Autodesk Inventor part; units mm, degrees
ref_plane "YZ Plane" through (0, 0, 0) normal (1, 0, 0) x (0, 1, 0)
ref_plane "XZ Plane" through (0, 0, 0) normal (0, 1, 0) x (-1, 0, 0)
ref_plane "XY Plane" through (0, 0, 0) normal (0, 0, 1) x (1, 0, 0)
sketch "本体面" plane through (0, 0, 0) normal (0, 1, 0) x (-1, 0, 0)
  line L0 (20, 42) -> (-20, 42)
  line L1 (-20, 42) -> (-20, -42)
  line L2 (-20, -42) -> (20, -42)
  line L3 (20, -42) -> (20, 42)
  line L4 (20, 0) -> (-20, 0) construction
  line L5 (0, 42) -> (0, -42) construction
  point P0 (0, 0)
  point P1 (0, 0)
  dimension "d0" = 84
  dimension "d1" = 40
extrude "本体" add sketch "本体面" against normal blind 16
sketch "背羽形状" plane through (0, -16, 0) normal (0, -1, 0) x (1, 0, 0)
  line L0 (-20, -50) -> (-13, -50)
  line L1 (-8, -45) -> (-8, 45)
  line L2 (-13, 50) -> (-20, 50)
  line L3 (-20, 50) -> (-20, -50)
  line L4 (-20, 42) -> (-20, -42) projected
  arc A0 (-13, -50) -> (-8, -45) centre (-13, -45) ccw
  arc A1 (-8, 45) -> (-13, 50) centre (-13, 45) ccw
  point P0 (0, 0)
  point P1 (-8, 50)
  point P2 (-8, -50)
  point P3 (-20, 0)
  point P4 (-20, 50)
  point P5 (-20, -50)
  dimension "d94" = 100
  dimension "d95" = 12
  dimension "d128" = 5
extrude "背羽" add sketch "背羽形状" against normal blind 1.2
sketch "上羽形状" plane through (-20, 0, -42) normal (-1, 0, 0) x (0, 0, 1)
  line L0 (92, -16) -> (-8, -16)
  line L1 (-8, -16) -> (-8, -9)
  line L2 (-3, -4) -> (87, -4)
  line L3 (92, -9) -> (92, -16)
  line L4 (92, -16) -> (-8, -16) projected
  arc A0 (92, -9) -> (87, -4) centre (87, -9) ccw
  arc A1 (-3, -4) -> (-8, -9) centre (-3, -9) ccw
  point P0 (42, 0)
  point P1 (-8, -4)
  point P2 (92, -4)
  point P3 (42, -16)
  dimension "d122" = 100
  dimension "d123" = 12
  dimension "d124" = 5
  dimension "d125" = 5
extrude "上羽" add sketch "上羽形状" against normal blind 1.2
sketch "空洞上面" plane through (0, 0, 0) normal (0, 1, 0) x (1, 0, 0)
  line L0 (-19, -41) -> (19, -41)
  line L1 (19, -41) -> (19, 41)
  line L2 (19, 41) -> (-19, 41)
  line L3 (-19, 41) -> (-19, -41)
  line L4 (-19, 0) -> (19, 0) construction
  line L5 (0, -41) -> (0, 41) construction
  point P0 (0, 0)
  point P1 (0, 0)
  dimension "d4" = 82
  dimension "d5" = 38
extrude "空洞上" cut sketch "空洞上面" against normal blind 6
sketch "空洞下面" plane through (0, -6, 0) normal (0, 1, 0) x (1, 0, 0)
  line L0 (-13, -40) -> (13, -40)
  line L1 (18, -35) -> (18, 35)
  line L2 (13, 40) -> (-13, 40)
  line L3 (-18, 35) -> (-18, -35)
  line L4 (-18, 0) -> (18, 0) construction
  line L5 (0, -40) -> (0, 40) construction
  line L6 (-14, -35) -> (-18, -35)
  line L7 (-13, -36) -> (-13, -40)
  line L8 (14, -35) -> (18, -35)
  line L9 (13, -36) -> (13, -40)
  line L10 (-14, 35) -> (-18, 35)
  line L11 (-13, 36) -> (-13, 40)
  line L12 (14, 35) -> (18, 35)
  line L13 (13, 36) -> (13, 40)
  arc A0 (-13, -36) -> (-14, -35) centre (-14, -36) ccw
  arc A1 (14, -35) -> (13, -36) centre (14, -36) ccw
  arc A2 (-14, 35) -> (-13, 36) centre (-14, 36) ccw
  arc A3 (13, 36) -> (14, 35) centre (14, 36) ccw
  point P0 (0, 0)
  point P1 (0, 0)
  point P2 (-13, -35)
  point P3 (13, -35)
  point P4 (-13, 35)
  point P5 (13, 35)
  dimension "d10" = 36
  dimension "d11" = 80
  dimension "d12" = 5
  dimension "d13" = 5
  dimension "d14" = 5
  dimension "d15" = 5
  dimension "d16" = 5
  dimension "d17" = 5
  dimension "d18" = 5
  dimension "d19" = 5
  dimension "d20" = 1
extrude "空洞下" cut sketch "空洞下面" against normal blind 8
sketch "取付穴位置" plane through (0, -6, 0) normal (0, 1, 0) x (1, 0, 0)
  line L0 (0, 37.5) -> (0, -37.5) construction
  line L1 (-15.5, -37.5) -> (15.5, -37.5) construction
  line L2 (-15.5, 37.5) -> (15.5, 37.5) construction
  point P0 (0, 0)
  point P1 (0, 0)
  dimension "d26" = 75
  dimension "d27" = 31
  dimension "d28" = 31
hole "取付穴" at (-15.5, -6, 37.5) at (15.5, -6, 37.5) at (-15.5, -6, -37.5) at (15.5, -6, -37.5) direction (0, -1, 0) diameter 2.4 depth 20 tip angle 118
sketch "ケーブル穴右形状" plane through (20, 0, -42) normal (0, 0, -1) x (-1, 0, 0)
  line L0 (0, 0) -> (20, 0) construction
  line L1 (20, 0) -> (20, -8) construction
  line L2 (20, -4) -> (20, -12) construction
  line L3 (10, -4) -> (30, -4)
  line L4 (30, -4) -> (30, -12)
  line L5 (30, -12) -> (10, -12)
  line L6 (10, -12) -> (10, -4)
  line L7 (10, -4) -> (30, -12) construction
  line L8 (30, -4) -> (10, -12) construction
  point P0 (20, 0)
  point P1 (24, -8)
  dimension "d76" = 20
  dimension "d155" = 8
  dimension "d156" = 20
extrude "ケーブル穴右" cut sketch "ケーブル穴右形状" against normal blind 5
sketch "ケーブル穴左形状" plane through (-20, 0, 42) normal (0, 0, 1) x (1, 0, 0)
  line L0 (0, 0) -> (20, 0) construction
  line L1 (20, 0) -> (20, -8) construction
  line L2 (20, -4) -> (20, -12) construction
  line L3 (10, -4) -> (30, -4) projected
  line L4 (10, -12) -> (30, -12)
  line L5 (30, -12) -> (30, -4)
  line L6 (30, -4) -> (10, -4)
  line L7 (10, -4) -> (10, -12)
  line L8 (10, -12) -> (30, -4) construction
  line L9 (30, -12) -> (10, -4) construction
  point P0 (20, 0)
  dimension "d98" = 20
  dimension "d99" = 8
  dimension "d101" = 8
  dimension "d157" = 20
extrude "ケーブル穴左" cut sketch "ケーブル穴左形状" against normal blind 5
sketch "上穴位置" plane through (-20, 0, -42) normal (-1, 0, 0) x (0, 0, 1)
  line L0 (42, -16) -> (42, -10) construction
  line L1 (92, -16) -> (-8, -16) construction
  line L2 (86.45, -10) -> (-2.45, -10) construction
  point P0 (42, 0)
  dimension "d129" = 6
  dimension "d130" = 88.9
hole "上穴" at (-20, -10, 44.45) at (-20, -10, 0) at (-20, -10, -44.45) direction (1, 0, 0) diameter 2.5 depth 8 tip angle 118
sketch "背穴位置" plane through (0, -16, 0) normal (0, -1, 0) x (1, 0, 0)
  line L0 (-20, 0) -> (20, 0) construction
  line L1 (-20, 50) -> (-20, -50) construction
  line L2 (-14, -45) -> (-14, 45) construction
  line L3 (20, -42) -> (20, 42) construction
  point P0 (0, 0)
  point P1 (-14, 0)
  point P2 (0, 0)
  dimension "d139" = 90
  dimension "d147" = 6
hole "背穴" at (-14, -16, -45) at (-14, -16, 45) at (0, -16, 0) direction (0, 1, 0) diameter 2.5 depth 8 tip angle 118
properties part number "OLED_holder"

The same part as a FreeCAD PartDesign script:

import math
import FreeCAD as App
import Part
import Sketcher

V = App.Vector
Q = App.Units.Quantity

doc = App.newDocument("Part")
body = doc.addObject("PartDesign::Body", "Body")

sketch1 = body.newObject("Sketcher::SketchObject", "Sketch")
sketch1.AttachmentSupport = (doc.getObject("XZ_Plane"), [""])
sketch1.MapMode = "FlatFace"
sketch1.addGeometry(Part.LineSegment(V(-20, -42, 0), V(-20, 42, 0)), False)
sketch1.addGeometry(Part.LineSegment(V(-20, 42, 0), V(20, 42, 0)), False)
sketch1.addGeometry(Part.LineSegment(V(20, 42, 0), V(20, -42, 0)), False)
sketch1.addGeometry(Part.LineSegment(V(20, -42, 0), V(-20, -42, 0)), False)
sketch1.addConstraint(Sketcher.Constraint("Coincident", 0, 2, 1, 1))
sketch1.addConstraint(Sketcher.Constraint("Coincident", 1, 2, 2, 1))
sketch1.addConstraint(Sketcher.Constraint("Coincident", 2, 2, 3, 1))
sketch1.addConstraint(Sketcher.Constraint("Coincident", 3, 2, 0, 1))
sketch1.addConstraint(Sketcher.Constraint("Vertical", 0))
sketch1.addConstraint(Sketcher.Constraint("Horizontal", 1))
sketch1.addConstraint(Sketcher.Constraint("Vertical", 2))
sketch1.addConstraint(Sketcher.Constraint("Horizontal", 3))
sketch1.addConstraint(Sketcher.Constraint("Symmetric", 0, 2, 2, 2, -1, 1))
sketch1.addConstraint(Sketcher.Constraint("DistanceX", 1, 1, 1, 2, Q("40 mm")))
sketch1.addConstraint(Sketcher.Constraint("DistanceY", 0, 1, 0, 2, Q("84 mm")))
pad1 = body.newObject("PartDesign::Pad", "Pad")
pad1.Profile = sketch1
pad1.Length = 16

sketch2 = body.newObject("Sketcher::SketchObject", "Sketch001")
sketch2.AttachmentSupport = (doc.getObject("XZ_Plane"), [""])
sketch2.MapMode = "FlatFace"
sketch2.AttachmentOffset = App.Placement(V(0, 0, 16), App.Rotation())
sketch2.addGeometry(Part.LineSegment(V(-20, 50, 0), V(-20, -50, 0)), False)
sketch2.addGeometry(Part.LineSegment(V(-20, -50, 0), V(-13, -50, 0)), False)
sketch2.addGeometry(Part.ArcOfCircle(Part.Circle(V(-13, -45, 0), V(0, 0, 1), 5), math.radians(-90), math.radians(0)), False)
sketch2.addGeometry(Part.LineSegment(V(-8, -45, 0), V(-8, 45, 0)), False)
sketch2.addGeometry(Part.ArcOfCircle(Part.Circle(V(-13, 45, 0), V(0, 0, 1), 5), math.radians(0), math.radians(90)), False)
sketch2.addGeometry(Part.LineSegment(V(-13, 50, 0), V(-20, 50, 0)), False)
sketch2.addConstraint(Sketcher.Constraint("Coincident", 0, 2, 1, 1))
sketch2.addConstraint(Sketcher.Constraint("Tangent", 1, 2, 2, 1))
sketch2.addConstraint(Sketcher.Constraint("Tangent", 2, 2, 3, 1))
sketch2.addConstraint(Sketcher.Constraint("Tangent", 3, 2, 4, 1))
sketch2.addConstraint(Sketcher.Constraint("Tangent", 4, 2, 5, 1))
sketch2.addConstraint(Sketcher.Constraint("Coincident", 5, 2, 0, 1))
sketch2.addConstraint(Sketcher.Constraint("Vertical", 0))
sketch2.addConstraint(Sketcher.Constraint("Horizontal", 1))
sketch2.addConstraint(Sketcher.Constraint("Vertical", 3))
sketch2.addConstraint(Sketcher.Constraint("Horizontal", 5))
sketch2.addConstraint(Sketcher.Constraint("Equal", 2, 4))
sketch2.addConstraint(Sketcher.Constraint("Radius", 2, Q("5 mm")))
sketch2.addConstraint(Sketcher.Constraint("DistanceY", 0, 2, 0, 1, Q("100 mm")))
sketch2.addConstraint(Sketcher.Constraint("DistanceX", 0, 2, 2, 2, Q("12 mm")))
sketch2.addConstraint(Sketcher.Constraint("DistanceX", 2, 3, -1, 1, Q("13 mm")))
sketch2.addConstraint(Sketcher.Constraint("DistanceY", 2, 3, -1, 1, Q("45 mm")))
pad2 = body.newObject("PartDesign::Pad", "Pad001")
pad2.Profile = sketch2
pad2.Length = 1.2
pad2.Reversed = True

sketch3 = body.newObject("Sketcher::SketchObject", "Sketch002")
sketch3.AttachmentSupport = (doc.getObject("YZ_Plane"), [""])
sketch3.MapMode = "FlatFace"
sketch3.AttachmentOffset = App.Placement(V(0, 0, -20), App.Rotation())
sketch3.addGeometry(Part.LineSegment(V(-16, -50, 0), V(-16, 50, 0)), False)
sketch3.addGeometry(Part.LineSegment(V(-16, 50, 0), V(-9, 50, 0)), False)
sketch3.addGeometry(Part.ArcOfCircle(Part.Circle(V(-9, 45, 0), V(0, 0, 1), 5), math.radians(0), math.radians(90)), False)
sketch3.addGeometry(Part.LineSegment(V(-4, 45, 0), V(-4, -45, 0)), False)
sketch3.addGeometry(Part.ArcOfCircle(Part.Circle(V(-9, -45, 0), V(0, 0, 1), 5), math.radians(-90), math.radians(0)), False)
sketch3.addGeometry(Part.LineSegment(V(-9, -50, 0), V(-16, -50, 0)), False)
sketch3.addConstraint(Sketcher.Constraint("Coincident", 0, 2, 1, 1))
sketch3.addConstraint(Sketcher.Constraint("Tangent", 1, 2, 2, 2))
sketch3.addConstraint(Sketcher.Constraint("Tangent", 2, 1, 3, 1))
sketch3.addConstraint(Sketcher.Constraint("Tangent", 3, 2, 4, 2))
sketch3.addConstraint(Sketcher.Constraint("Tangent", 4, 1, 5, 1))
sketch3.addConstraint(Sketcher.Constraint("Coincident", 5, 2, 0, 1))
sketch3.addConstraint(Sketcher.Constraint("Vertical", 0))
sketch3.addConstraint(Sketcher.Constraint("Horizontal", 1))
sketch3.addConstraint(Sketcher.Constraint("Vertical", 3))
sketch3.addConstraint(Sketcher.Constraint("Horizontal", 5))
sketch3.addConstraint(Sketcher.Constraint("Equal", 2, 4))
sketch3.addConstraint(Sketcher.Constraint("Radius", 2, Q("5 mm")))
sketch3.addConstraint(Sketcher.Constraint("DistanceY", 0, 1, 0, 2, Q("100 mm")))
sketch3.addConstraint(Sketcher.Constraint("DistanceX", 0, 2, 2, 1, Q("12 mm")))
sketch3.addConstraint(Sketcher.Constraint("DistanceX", 2, 3, -1, 1, Q("9 mm")))
sketch3.addConstraint(Sketcher.Constraint("DistanceY", -1, 1, 2, 3, Q("45 mm")))
pad3 = body.newObject("PartDesign::Pad", "Pad002")
pad3.Profile = sketch3
pad3.Length = 1.2

sketch4 = body.newObject("Sketcher::SketchObject", "Sketch003")
sketch4.AttachmentSupport = (doc.getObject("XZ_Plane"), [""])
sketch4.MapMode = "FlatFace"
sketch4.addGeometry(Part.LineSegment(V(-19, -41, 0), V(-19, 41, 0)), False)
sketch4.addGeometry(Part.LineSegment(V(-19, 41, 0), V(19, 41, 0)), False)
sketch4.addGeometry(Part.LineSegment(V(19, 41, 0), V(19, -41, 0)), False)
sketch4.addGeometry(Part.LineSegment(V(19, -41, 0), V(-19, -41, 0)), False)
sketch4.addConstraint(Sketcher.Constraint("Coincident", 0, 2, 1, 1))
sketch4.addConstraint(Sketcher.Constraint("Coincident", 1, 2, 2, 1))
sketch4.addConstraint(Sketcher.Constraint("Coincident", 2, 2, 3, 1))
sketch4.addConstraint(Sketcher.Constraint("Coincident", 3, 2, 0, 1))
sketch4.addConstraint(Sketcher.Constraint("Vertical", 0))
sketch4.addConstraint(Sketcher.Constraint("Horizontal", 1))
sketch4.addConstraint(Sketcher.Constraint("Vertical", 2))
sketch4.addConstraint(Sketcher.Constraint("Horizontal", 3))
sketch4.addConstraint(Sketcher.Constraint("Symmetric", 0, 2, 2, 2, -1, 1))
sketch4.addConstraint(Sketcher.Constraint("DistanceX", 1, 1, 1, 2, Q("38 mm")))
sketch4.addConstraint(Sketcher.Constraint("DistanceY", 0, 1, 0, 2, Q("82 mm")))
pocket1 = body.newObject("PartDesign::Pocket", "Pocket")
pocket1.Profile = sketch4
pocket1.Length = 6
pocket1.Reversed = True

sketch5 = body.newObject("Sketcher::SketchObject", "Sketch004")
sketch5.AttachmentSupport = (doc.getObject("XZ_Plane"), [""])
sketch5.MapMode = "FlatFace"
sketch5.AttachmentOffset = App.Placement(V(0, 0, 6), App.Rotation())
sketch5.addGeometry(Part.LineSegment(V(-13, 36, 0), V(-13, 40, 0)), False)
sketch5.addGeometry(Part.LineSegment(V(-13, 40, 0), V(13, 40, 0)), False)
sketch5.addGeometry(Part.LineSegment(V(13, 40, 0), V(13, 36, 0)), False)
sketch5.addGeometry(Part.ArcOfCircle(Part.Circle(V(14, 36, 0), V(0, 0, 1), 1), math.radians(180), math.radians(270)), False)
sketch5.addGeometry(Part.LineSegment(V(14, 35, 0), V(18, 35, 0)), False)
sketch5.addGeometry(Part.LineSegment(V(18, 35, 0), V(18, -35, 0)), False)
sketch5.addGeometry(Part.LineSegment(V(18, -35, 0), V(14, -35, 0)), False)
sketch5.addGeometry(Part.ArcOfCircle(Part.Circle(V(14, -36, 0), V(0, 0, 1), 1), math.radians(90), math.radians(180)), False)
sketch5.addGeometry(Part.LineSegment(V(13, -36, 0), V(13, -40, 0)), False)
sketch5.addGeometry(Part.LineSegment(V(13, -40, 0), V(-13, -40, 0)), False)
sketch5.addGeometry(Part.LineSegment(V(-13, -40, 0), V(-13, -36, 0)), False)
sketch5.addGeometry(Part.ArcOfCircle(Part.Circle(V(-14, -36, 0), V(0, 0, 1), 1), math.radians(0), math.radians(90)), False)
sketch5.addGeometry(Part.LineSegment(V(-14, -35, 0), V(-18, -35, 0)), False)
sketch5.addGeometry(Part.LineSegment(V(-18, -35, 0), V(-18, 35, 0)), False)
sketch5.addGeometry(Part.LineSegment(V(-18, 35, 0), V(-14, 35, 0)), False)
sketch5.addGeometry(Part.ArcOfCircle(Part.Circle(V(-14, 36, 0), V(0, 0, 1), 1), math.radians(-90), math.radians(0)), False)
sketch5.addConstraint(Sketcher.Constraint("Coincident", 0, 2, 1, 1))
sketch5.addConstraint(Sketcher.Constraint("Coincident", 1, 2, 2, 1))
sketch5.addConstraint(Sketcher.Constraint("Tangent", 2, 2, 3, 1))
sketch5.addConstraint(Sketcher.Constraint("Tangent", 3, 2, 4, 1))
sketch5.addConstraint(Sketcher.Constraint("Coincident", 4, 2, 5, 1))
sketch5.addConstraint(Sketcher.Constraint("Coincident", 5, 2, 6, 1))
sketch5.addConstraint(Sketcher.Constraint("Tangent", 6, 2, 7, 1))
sketch5.addConstraint(Sketcher.Constraint("Tangent", 7, 2, 8, 1))
sketch5.addConstraint(Sketcher.Constraint("Coincident", 8, 2, 9, 1))
sketch5.addConstraint(Sketcher.Constraint("Coincident", 9, 2, 10, 1))
sketch5.addConstraint(Sketcher.Constraint("Tangent", 10, 2, 11, 1))
sketch5.addConstraint(Sketcher.Constraint("Tangent", 11, 2, 12, 1))
sketch5.addConstraint(Sketcher.Constraint("Coincident", 12, 2, 13, 1))
sketch5.addConstraint(Sketcher.Constraint("Coincident", 13, 2, 14, 1))
sketch5.addConstraint(Sketcher.Constraint("Tangent", 14, 2, 15, 1))
sketch5.addConstraint(Sketcher.Constraint("Tangent", 15, 2, 0, 1))
sketch5.addConstraint(Sketcher.Constraint("Vertical", 0))
sketch5.addConstraint(Sketcher.Constraint("Horizontal", 1))
sketch5.addConstraint(Sketcher.Constraint("Vertical", 2))
sketch5.addConstraint(Sketcher.Constraint("Horizontal", 4))
sketch5.addConstraint(Sketcher.Constraint("Vertical", 5))
sketch5.addConstraint(Sketcher.Constraint("Horizontal", 6))
sketch5.addConstraint(Sketcher.Constraint("Vertical", 8))
sketch5.addConstraint(Sketcher.Constraint("Horizontal", 9))
sketch5.addConstraint(Sketcher.Constraint("Vertical", 10))
sketch5.addConstraint(Sketcher.Constraint("Horizontal", 12))
sketch5.addConstraint(Sketcher.Constraint("Vertical", 13))
sketch5.addConstraint(Sketcher.Constraint("Horizontal", 14))
sketch5.addConstraint(Sketcher.Constraint("Equal", 3, 7))
sketch5.addConstraint(Sketcher.Constraint("Equal", 7, 11))
sketch5.addConstraint(Sketcher.Constraint("Equal", 11, 15))
sketch5.addConstraint(Sketcher.Constraint("Symmetric", 3, 3, 11, 3, -1, 1))
sketch5.addConstraint(Sketcher.Constraint("Symmetric", 7, 3, 15, 3, -1, 1))
sketch5.addConstraint(Sketcher.Constraint("Symmetric", 7, 3, 11, 3, -2))
sketch5.addConstraint(Sketcher.Constraint("Equal", 6, 12))
sketch5.addConstraint(Sketcher.Constraint("Equal", 14, 0))
sketch5.addConstraint(Sketcher.Constraint("Equal", 2, 8))
sketch5.addConstraint(Sketcher.Constraint("Radius", 3, Q("1 mm")))
sketch5.addConstraint(Sketcher.Constraint("DistanceY", -1, 1, 3, 3, Q("36 mm")))
sketch5.addConstraint(Sketcher.Constraint("DistanceY", 3, 2, 1, 2, Q("5 mm")))
sketch5.addConstraint(Sketcher.Constraint("DistanceX", 1, 1, 1, 2, Q("26 mm")))
pocket2 = body.newObject("PartDesign::Pocket", "Pocket001")
pocket2.Profile = sketch5
pocket2.Length = 8
pocket2.Reversed = True

sketch6 = body.newObject("Sketcher::SketchObject", "Sketch005")
sketch6.AttachmentSupport = (doc.getObject("XZ_Plane"), [""])
sketch6.MapMode = "FlatFace"
sketch6.AttachmentOffset = App.Placement(V(0, 0, 6), App.Rotation())
sketch6.addGeometry(Part.Circle(V(-15.5, 37.5, 0), V(0, 0, 1), 1.2), False)
sketch6.addGeometry(Part.Circle(V(15.5, 37.5, 0), V(0, 0, 1), 1.2), False)
sketch6.addGeometry(Part.Circle(V(-15.5, -37.5, 0), V(0, 0, 1), 1.2), False)
sketch6.addGeometry(Part.Circle(V(15.5, -37.5, 0), V(0, 0, 1), 1.2), False)
sketch6.addConstraint(Sketcher.Constraint("Equal", 0, 1))
sketch6.addConstraint(Sketcher.Constraint("Equal", 1, 2))
sketch6.addConstraint(Sketcher.Constraint("Equal", 2, 3))
sketch6.addConstraint(Sketcher.Constraint("Symmetric", 1, 3, 2, 3, -1, 1))
sketch6.addConstraint(Sketcher.Constraint("Symmetric", 0, 3, 3, 3, -1, 1))
sketch6.addConstraint(Sketcher.Constraint("Symmetric", 0, 3, 1, 3, -2))
sketch6.addConstraint(Sketcher.Constraint("Diameter", 0, Q("2.4 mm")))
sketch6.addConstraint(Sketcher.Constraint("DistanceX", 0, 3, 1, 3, Q("31 mm")))
sketch6.addConstraint(Sketcher.Constraint("DistanceY", 2, 3, 0, 3, Q("75 mm")))
doc.recompute()
hole = body.newObject("PartDesign::Hole", "Hole")
hole.Profile = sketch6
hole.ThreadType = "None"
hole.Diameter = 2.4
hole.DepthType = "Dimension"
hole.Depth = 20
hole.DrillPoint = "Angled"
hole.DrillPointAngle = 118
hole.Reversed = True

sketch7 = body.newObject("Sketcher::SketchObject", "Sketch006")
sketch7.AttachmentSupport = (doc.getObject("XY_Plane"), [""])
sketch7.MapMode = "FlatFace"
sketch7.AttachmentOffset = App.Placement(V(0, 0, -42), App.Rotation())
sketch7.addGeometry(Part.LineSegment(V(-10, -4, 0), V(10, -4, 0)), False)
sketch7.addGeometry(Part.LineSegment(V(10, -4, 0), V(10, -12, 0)), False)
sketch7.addGeometry(Part.LineSegment(V(10, -12, 0), V(-10, -12, 0)), False)
sketch7.addGeometry(Part.LineSegment(V(-10, -12, 0), V(-10, -4, 0)), False)
sketch7.addConstraint(Sketcher.Constraint("Coincident", 0, 2, 1, 1))
sketch7.addConstraint(Sketcher.Constraint("Coincident", 1, 2, 2, 1))
sketch7.addConstraint(Sketcher.Constraint("Coincident", 2, 2, 3, 1))
sketch7.addConstraint(Sketcher.Constraint("Coincident", 3, 2, 0, 1))
sketch7.addConstraint(Sketcher.Constraint("Horizontal", 0))
sketch7.addConstraint(Sketcher.Constraint("Vertical", 1))
sketch7.addConstraint(Sketcher.Constraint("Horizontal", 2))
sketch7.addConstraint(Sketcher.Constraint("Vertical", 3))
sketch7.addConstraint(Sketcher.Constraint("DistanceX", 0, 1, 0, 2, Q("20 mm")))
sketch7.addConstraint(Sketcher.Constraint("DistanceY", 1, 2, 1, 1, Q("8 mm")))
sketch7.addConstraint(Sketcher.Constraint("DistanceX", -1, 1, 0, 2, Q("10 mm")))
sketch7.addConstraint(Sketcher.Constraint("DistanceY", 0, 2, -1, 1, Q("4 mm")))
pocket3 = body.newObject("PartDesign::Pocket", "Pocket002")
pocket3.Profile = sketch7
pocket3.Length = 5
pocket3.Reversed = True

sketch8 = body.newObject("Sketcher::SketchObject", "Sketch007")
sketch8.AttachmentSupport = (doc.getObject("XY_Plane"), [""])
sketch8.MapMode = "FlatFace"
sketch8.AttachmentOffset = App.Placement(V(0, 0, 42), App.Rotation())
sketch8.addGeometry(Part.LineSegment(V(10, -4, 0), V(-10, -4, 0)), False)
sketch8.addGeometry(Part.LineSegment(V(-10, -4, 0), V(-10, -12, 0)), False)
sketch8.addGeometry(Part.LineSegment(V(-10, -12, 0), V(10, -12, 0)), False)
sketch8.addGeometry(Part.LineSegment(V(10, -12, 0), V(10, -4, 0)), False)
sketch8.addConstraint(Sketcher.Constraint("Coincident", 0, 2, 1, 1))
sketch8.addConstraint(Sketcher.Constraint("Coincident", 1, 2, 2, 1))
sketch8.addConstraint(Sketcher.Constraint("Coincident", 2, 2, 3, 1))
sketch8.addConstraint(Sketcher.Constraint("Coincident", 3, 2, 0, 1))
sketch8.addConstraint(Sketcher.Constraint("Horizontal", 0))
sketch8.addConstraint(Sketcher.Constraint("Vertical", 1))
sketch8.addConstraint(Sketcher.Constraint("Horizontal", 2))
sketch8.addConstraint(Sketcher.Constraint("Vertical", 3))
sketch8.addConstraint(Sketcher.Constraint("DistanceX", 0, 2, 0, 1, Q("20 mm")))
sketch8.addConstraint(Sketcher.Constraint("DistanceY", 1, 2, 1, 1, Q("8 mm")))
sketch8.addConstraint(Sketcher.Constraint("DistanceX", 0, 2, -1, 1, Q("10 mm")))
sketch8.addConstraint(Sketcher.Constraint("DistanceY", 0, 2, -1, 1, Q("4 mm")))
pocket4 = body.newObject("PartDesign::Pocket", "Pocket003")
pocket4.Profile = sketch8
pocket4.Length = 5

sketch9 = body.newObject("Sketcher::SketchObject", "Sketch008")
sketch9.AttachmentSupport = (doc.getObject("YZ_Plane"), [""])
sketch9.MapMode = "FlatFace"
sketch9.AttachmentOffset = App.Placement(V(0, 0, -20), App.Rotation())
sketch9.addGeometry(Part.Circle(V(-10, 44.5, 0), V(0, 0, 1), 1.2), False)
sketch9.addGeometry(Part.Circle(V(-10, 0, 0), V(0, 0, 1), 1.2), False)
sketch9.addGeometry(Part.Circle(V(-10, -44.5, 0), V(0, 0, 1), 1.2), False)
sketch9.addConstraint(Sketcher.Constraint("Equal", 0, 1))
sketch9.addConstraint(Sketcher.Constraint("Equal", 1, 2))
sketch9.addConstraint(Sketcher.Constraint("Symmetric", 0, 3, 2, 3, -1))
sketch9.addConstraint(Sketcher.Constraint("PointOnObject", 1, 3, -1))
sketch9.addConstraint(Sketcher.Constraint("Vertical", 0, 3, 1, 3))
sketch9.addConstraint(Sketcher.Constraint("Diameter", 0, Q("2.5 mm")))
sketch9.addConstraint(Sketcher.Constraint("DistanceX", 0, 3, -1, 1, Q("10 mm")))
sketch9.addConstraint(Sketcher.Constraint("DistanceY", 2, 3, 0, 3, Q("88.9 mm")))
doc.recompute()
hole2 = body.newObject("PartDesign::Hole", "Hole001")
hole2.Profile = sketch9
hole2.ThreadType = "None"
hole2.Diameter = 2.5
hole2.DepthType = "Dimension"
hole2.Depth = 8
hole2.DrillPoint = "Angled"
hole2.DrillPointAngle = 118
hole2.Reversed = True

sketch10 = body.newObject("Sketcher::SketchObject", "Sketch009")
sketch10.AttachmentSupport = (doc.getObject("XZ_Plane"), [""])
sketch10.MapMode = "FlatFace"
sketch10.AttachmentOffset = App.Placement(V(0, 0, 16), App.Rotation())
sketch10.addGeometry(Part.Circle(V(-14, -45, 0), V(0, 0, 1), 1.2), False)
sketch10.addGeometry(Part.Circle(V(-14, 45, 0), V(0, 0, 1), 1.2), False)
sketch10.addGeometry(Part.Circle(V(0, 0, 0), V(0, 0, 1), 1.2), False)
sketch10.addConstraint(Sketcher.Constraint("Coincident", 2, 3, -1, 1))
sketch10.addConstraint(Sketcher.Constraint("Equal", 0, 1))
sketch10.addConstraint(Sketcher.Constraint("Equal", 1, 2))
sketch10.addConstraint(Sketcher.Constraint("Symmetric", 0, 3, 1, 3, -1))
sketch10.addConstraint(Sketcher.Constraint("Diameter", 0, Q("2.5 mm")))
sketch10.addConstraint(Sketcher.Constraint("DistanceX", 0, 3, -1, 1, Q("14 mm")))
sketch10.addConstraint(Sketcher.Constraint("DistanceY", 0, 3, -1, 1, Q("45 mm")))
doc.recompute()
hole3 = body.newObject("PartDesign::Hole", "Hole002")
hole3.Profile = sketch10
hole3.ThreadType = "None"
hole3.Diameter = 2.5
hole3.DepthType = "Dimension"
hole3.Depth = 8
hole3.DrillPoint = "Angled"
hole3.DrillPointAngle = 118

doc.recompute()
